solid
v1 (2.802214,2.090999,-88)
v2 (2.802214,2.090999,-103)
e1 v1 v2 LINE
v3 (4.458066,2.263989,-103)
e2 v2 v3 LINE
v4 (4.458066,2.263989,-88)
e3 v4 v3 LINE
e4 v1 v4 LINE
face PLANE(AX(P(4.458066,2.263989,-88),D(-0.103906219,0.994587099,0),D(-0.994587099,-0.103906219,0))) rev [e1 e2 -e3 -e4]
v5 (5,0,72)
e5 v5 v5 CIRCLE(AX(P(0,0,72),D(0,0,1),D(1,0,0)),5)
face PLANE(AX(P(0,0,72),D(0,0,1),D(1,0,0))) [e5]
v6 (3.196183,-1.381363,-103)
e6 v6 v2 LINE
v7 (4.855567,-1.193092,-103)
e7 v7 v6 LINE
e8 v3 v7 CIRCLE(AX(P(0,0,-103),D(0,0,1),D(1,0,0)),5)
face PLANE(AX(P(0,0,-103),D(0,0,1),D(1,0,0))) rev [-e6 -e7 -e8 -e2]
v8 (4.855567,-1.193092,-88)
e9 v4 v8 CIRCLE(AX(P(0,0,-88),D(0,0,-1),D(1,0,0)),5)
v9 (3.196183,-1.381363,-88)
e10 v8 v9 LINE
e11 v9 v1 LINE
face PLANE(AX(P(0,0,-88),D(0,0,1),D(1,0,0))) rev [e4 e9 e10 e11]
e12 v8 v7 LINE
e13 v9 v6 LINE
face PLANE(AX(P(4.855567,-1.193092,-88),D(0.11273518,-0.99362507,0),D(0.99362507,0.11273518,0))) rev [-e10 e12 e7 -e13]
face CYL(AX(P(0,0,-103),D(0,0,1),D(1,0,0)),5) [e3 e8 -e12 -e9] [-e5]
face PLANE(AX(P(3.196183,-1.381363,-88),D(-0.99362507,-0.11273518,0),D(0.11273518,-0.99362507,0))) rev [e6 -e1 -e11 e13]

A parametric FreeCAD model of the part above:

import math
import FreeCAD as App
import Part
import Sketcher

doc = App.newDocument("Part")
body = doc.addObject("PartDesign::Body", "Body")

sketch1 = doc.addObject("Sketcher::SketchObject", "Sketch")
body.addObject(sketch1)
sketch1.AttachmentSupport = (doc.XY_Plane, [""])
sketch1.MapMode = "FlatFace"
sketch1.addGeometry(Part.Circle(App.Vector(0, 0, 0), App.Vector(0, 0, 1), 5), False)
sketch1.addConstraint([
    Sketcher.Constraint("Coincident", 0, 3, -1, 1),
    Sketcher.Constraint("Diameter", 0, 10.0),
])
pad1 = doc.addObject("PartDesign::Pad", "Pad")
body.addObject(pad1)
pad1.Profile = sketch1
pad1.Type = "TwoLengths"
pad1.Length = 72
pad1.Length2 = 103

sketch2 = doc.addObject("Sketcher::SketchObject", "Sketch001")
body.addObject(sketch2)
sketch2.AttachmentSupport = (doc.XY_Plane, [""])
sketch2.MapMode = "FlatFace"
sketch2.AttachmentOffset = App.Placement(App.Vector(0, 0, -103), App.Rotation())
sketch2.addGeometry([
    Part.LineSegment(App.Vector(4.855567, -1.193092, 0), App.Vector(3.196183, -1.381363, 0)),
    Part.LineSegment(App.Vector(3.196183, -1.381363, 0), App.Vector(2.802214, 2.090999, 0)),
    Part.LineSegment(App.Vector(2.802214, 2.090999, 0), App.Vector(4.458066, 2.263989, 0)),
    Part.ArcOfCircle(Part.Circle(App.Vector(0, 0, 0), App.Vector(0, 0, 1), 5), math.radians(-13.805007), math.radians(26.923332)),
], False)
sketch2.addConstraint([
    Sketcher.Constraint("Coincident", 0, 2, 1, 1),
    Sketcher.Constraint("Coincident", 1, 2, 2, 1),
    Sketcher.Constraint("Coincident", 2, 2, 3, 2),
    Sketcher.Constraint("Coincident", 3, 1, 0, 1),
    Sketcher.Constraint("Coincident", 3, 3, -1, 1),
    Sketcher.Constraint("Perpendicular", 0, 1),
    Sketcher.Constraint("Radius", 3, 5.0),
    Sketcher.Constraint("DistanceY", -1, 1, 1, 2, 2.090999),
    Sketcher.Constraint("DistanceX", 2, 2, 3, 1, 0.397501),
    Sketcher.Constraint("Distance", 0, 1.670031),
    Sketcher.Constraint("Distance", 1, 3.49464),
    Sketcher.Constraint("DistanceY", -1, 1, 2, 2, 2.263989),
])
pocket1 = doc.addObject("PartDesign::Pocket", "Pocket")
body.addObject(pocket1)
pocket1.Profile = sketch2
pocket1.Length = 15
pocket1.Reversed = True

doc.recompute()
